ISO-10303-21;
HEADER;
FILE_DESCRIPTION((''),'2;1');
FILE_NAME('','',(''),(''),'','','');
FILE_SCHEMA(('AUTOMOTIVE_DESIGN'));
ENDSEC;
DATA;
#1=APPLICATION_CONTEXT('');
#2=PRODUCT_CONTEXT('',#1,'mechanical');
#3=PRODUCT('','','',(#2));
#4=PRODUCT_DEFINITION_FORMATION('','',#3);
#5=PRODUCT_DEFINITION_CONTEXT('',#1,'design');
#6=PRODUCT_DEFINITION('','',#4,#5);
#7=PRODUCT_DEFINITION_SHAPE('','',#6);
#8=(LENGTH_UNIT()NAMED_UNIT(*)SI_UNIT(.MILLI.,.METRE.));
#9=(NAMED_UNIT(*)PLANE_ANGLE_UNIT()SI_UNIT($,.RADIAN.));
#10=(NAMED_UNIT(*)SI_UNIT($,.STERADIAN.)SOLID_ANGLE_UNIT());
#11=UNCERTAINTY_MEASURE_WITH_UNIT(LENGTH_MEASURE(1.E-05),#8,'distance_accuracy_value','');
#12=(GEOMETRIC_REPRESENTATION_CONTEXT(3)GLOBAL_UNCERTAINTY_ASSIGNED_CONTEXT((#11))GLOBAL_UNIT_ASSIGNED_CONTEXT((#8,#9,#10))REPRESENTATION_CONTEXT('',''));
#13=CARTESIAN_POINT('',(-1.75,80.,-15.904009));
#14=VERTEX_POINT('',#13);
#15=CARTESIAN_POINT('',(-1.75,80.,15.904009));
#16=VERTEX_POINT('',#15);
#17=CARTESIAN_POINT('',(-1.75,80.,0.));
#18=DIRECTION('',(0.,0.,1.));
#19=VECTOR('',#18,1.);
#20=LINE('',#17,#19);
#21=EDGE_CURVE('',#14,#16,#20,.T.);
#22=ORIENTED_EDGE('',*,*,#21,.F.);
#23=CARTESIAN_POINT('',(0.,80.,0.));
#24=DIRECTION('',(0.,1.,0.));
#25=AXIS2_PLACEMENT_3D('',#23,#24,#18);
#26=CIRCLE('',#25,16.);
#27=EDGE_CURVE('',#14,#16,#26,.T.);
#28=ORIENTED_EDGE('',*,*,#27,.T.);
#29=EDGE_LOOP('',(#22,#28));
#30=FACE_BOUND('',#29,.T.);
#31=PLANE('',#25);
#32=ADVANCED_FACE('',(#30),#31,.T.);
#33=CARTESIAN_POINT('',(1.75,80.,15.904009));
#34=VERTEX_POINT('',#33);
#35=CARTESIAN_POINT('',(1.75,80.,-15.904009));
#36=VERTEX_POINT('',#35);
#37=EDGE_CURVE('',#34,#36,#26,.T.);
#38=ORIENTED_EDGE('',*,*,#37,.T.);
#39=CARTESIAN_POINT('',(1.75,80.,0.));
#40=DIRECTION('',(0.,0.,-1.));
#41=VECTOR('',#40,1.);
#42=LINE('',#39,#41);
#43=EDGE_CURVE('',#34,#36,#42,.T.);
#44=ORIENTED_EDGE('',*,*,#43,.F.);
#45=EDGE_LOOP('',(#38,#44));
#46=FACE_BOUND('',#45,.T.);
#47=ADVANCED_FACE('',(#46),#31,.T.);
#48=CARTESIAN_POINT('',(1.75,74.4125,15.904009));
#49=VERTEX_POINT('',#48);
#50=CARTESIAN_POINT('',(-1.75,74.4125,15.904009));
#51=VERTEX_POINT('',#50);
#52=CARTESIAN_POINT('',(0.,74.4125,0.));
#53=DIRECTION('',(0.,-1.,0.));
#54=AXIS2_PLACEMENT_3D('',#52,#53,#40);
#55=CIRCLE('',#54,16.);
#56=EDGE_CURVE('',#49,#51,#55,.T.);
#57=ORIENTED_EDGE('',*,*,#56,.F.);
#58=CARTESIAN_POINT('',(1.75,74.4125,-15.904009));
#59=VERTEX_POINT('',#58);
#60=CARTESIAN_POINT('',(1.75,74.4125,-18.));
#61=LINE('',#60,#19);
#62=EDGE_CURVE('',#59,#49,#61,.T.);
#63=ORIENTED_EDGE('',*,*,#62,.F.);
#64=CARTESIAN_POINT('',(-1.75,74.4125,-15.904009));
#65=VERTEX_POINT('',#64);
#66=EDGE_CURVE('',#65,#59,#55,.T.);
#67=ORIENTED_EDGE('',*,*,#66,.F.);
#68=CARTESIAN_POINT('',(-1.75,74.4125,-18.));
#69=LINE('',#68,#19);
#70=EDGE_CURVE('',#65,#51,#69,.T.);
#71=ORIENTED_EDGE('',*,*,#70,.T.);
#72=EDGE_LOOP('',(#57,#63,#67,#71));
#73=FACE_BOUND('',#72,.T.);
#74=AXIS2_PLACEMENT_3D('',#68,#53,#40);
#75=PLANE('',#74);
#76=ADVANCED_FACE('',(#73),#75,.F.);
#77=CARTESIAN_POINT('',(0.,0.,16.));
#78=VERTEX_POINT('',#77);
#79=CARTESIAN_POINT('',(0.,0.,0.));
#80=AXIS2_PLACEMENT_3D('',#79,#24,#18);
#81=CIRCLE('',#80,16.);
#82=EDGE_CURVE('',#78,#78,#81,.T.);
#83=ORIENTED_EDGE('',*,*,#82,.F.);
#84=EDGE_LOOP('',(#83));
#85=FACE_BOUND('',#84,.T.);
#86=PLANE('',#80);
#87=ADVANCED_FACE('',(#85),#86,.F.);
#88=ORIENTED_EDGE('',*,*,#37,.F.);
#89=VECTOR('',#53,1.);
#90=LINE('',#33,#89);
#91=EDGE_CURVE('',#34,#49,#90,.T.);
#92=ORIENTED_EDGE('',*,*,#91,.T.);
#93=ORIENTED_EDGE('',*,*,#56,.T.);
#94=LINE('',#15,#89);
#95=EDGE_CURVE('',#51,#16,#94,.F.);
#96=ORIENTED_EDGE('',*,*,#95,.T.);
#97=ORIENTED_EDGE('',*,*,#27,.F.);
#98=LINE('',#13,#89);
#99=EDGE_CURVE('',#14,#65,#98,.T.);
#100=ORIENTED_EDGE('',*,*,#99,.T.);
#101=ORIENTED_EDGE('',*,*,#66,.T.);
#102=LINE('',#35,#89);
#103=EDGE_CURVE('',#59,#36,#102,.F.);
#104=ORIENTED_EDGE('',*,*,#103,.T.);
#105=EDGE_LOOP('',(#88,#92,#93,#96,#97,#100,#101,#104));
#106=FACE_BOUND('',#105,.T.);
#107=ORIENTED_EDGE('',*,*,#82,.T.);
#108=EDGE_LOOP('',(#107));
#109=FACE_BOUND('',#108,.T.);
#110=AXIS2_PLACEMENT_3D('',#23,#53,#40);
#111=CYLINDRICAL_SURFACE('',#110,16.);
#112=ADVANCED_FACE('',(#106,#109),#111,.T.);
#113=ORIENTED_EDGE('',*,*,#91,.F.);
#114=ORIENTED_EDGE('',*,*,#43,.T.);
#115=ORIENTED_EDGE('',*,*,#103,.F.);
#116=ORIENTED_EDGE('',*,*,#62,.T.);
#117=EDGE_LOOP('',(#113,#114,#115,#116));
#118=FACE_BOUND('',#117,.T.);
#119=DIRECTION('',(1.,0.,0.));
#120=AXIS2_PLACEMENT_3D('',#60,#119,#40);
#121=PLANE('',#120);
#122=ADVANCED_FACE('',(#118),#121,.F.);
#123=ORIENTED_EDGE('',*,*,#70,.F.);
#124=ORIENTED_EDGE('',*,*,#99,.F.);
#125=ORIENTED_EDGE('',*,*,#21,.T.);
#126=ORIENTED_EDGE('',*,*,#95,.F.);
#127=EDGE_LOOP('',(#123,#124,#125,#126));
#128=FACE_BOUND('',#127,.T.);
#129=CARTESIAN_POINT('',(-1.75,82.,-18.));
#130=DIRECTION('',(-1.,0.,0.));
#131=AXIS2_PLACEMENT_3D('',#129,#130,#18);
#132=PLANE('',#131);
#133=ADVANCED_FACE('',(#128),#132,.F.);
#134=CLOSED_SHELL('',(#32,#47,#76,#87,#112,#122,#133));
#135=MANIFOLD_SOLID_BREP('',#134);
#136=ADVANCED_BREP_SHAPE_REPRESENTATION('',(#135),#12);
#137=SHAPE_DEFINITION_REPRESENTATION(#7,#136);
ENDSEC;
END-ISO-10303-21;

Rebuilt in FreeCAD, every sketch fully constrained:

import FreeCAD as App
import Part
import Sketcher


def add_polygon(sketch, points):
    """Adds a closed chain of lines whose ends are joined by coincident constraints."""
    first, n = sketch.GeometryCount, len(points)
    for a, b in zip(points, points[1:] + points[:1]):
        sketch.addGeometry(Part.LineSegment(App.Vector(*a, 0), App.Vector(*b, 0)), False)
    for i in range(n):
        sketch.addConstraint(Sketcher.Constraint("Coincident", first + i, 2, first + (i + 1) % n, 1))

doc = App.newDocument("Part")
params = doc.addObject("Spreadsheet::Sheet", "Params")
for row, (alias, value) in enumerate([
    ("sketch1_diameter", "32 mm"),
    ("pad1_length", "80 mm"),
    ("sketch2_width", "3.5 mm"),
    ("pocket1_length", "36 mm"),
], start=1):
    params.set(f"A{row}", alias)
    params.set(f"B{row}", "=" + value)
    params.setAlias(f"B{row}", alias)

body = doc.addObject("PartDesign::Body", "Body")

sketch1 = body.newObject("Sketcher::SketchObject", "Sketch")
sketch1.AttachmentSupport = (doc.getObject("XZ_Plane"), [""])
sketch1.MapMode = "FlatFace"
sketch1.addGeometry(Part.Circle(App.Vector(0, 0, 0), App.Vector(0, 0, 1), 16), False)
sketch1.addConstraint(Sketcher.Constraint("Coincident", 0, 3, -1, 1))
sketch1.addConstraint(Sketcher.Constraint("Diameter", 0, 32.0))
sketch1.setExpression("Constraints[1]", "Params.sketch1_diameter")
pad1 = body.newObject("PartDesign::Pad", "Pad")
pad1.Profile = sketch1
pad1.setExpression("Length", "Params.pad1_length")
pad1.Reversed = True

sketch2 = body.newObject("Sketcher::SketchObject", "Sketch001")
sketch2.AttachmentSupport = (doc.getObject("XY_Plane"), [""])
sketch2.MapMode = "FlatFace"
add_polygon(sketch2, [(-1.8, 82), (-1.8, 74.4), (1.8, 74.4), (1.8, 82)])
sketch2.addConstraint(Sketcher.Constraint("Vertical", 0))
sketch2.addConstraint(Sketcher.Constraint("Horizontal", 1))
sketch2.addConstraint(Sketcher.Constraint("Vertical", 2))
sketch2.addConstraint(Sketcher.Constraint("Horizontal", 3))
sketch2.addConstraint(Sketcher.Constraint("DistanceX", 1, 1, 1, 2, 3.5))
sketch2.addConstraint(Sketcher.Constraint("DistanceY", -1, 1, 2, 2, 82.0))
sketch2.addConstraint(Sketcher.Constraint("DistanceX", 0, 2, -1, 1, 1.75))
sketch2.addConstraint(Sketcher.Constraint("DistanceY", 0, 2, 0, 1, 7.5875))
sketch2.setExpression("Constraints[8]", "Params.sketch2_width")
pocket1 = body.newObject("PartDesign::Pocket", "Pocket")
pocket1.Profile = sketch2
pocket1.setExpression("Length", "Params.pocket1_length")
pocket1.Midplane = True

doc.recompute()
